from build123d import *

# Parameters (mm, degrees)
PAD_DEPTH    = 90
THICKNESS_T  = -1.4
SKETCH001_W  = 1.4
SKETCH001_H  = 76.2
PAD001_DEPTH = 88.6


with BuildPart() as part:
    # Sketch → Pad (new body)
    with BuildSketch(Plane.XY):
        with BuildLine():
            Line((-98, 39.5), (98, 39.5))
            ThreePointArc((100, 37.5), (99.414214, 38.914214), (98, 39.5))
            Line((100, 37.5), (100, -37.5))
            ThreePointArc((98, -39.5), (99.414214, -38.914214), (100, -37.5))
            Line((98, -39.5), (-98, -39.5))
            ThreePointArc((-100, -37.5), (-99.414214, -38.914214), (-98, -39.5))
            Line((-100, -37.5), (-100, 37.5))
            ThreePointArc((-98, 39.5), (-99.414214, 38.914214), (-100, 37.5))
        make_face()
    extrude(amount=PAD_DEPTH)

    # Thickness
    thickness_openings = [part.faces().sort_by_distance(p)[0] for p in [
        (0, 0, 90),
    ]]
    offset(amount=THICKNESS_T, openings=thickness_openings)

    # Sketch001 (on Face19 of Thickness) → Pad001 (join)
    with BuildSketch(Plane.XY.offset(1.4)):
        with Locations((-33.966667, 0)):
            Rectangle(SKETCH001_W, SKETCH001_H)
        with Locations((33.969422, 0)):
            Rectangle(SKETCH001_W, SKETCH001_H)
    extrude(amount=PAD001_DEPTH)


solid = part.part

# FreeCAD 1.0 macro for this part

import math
import FreeCAD as App
import Part
import Sketcher

V = App.Vector


def faces_at(feature, points):
    """Names of the faces that lie closest to the given points."""
    faces = feature.Shape.Faces
    near = lambda p: min(range(len(faces)), key=lambda i: faces[i].distToShape(Part.Vertex(*p))[0])
    return sorted({f"Face{near(p) + 1}" for p in points})


def add_polygon(sketch, points):
    """Adds a closed chain of lines whose ends are joined by coincident constraints."""
    first, n = sketch.GeometryCount, len(points)
    for a, b in zip(points, points[1:] + points[:1]):
        sketch.addGeometry(Part.LineSegment(App.Vector(*a, 0), App.Vector(*b, 0)), False)
    for i in range(n):
        sketch.addConstraint(Sketcher.Constraint("Coincident", first + i, 2, first + (i + 1) % n, 1))

doc = App.newDocument("Part")
body = doc.addObject("PartDesign::Body", "Body")

sketch1 = body.newObject("Sketcher::SketchObject", "Sketch")
sketch1.AttachmentSupport = (doc.getObject("XY_Plane"), [""])
sketch1.MapMode = "FlatFace"
sketch1.addGeometry([
    Part.LineSegment(V(98, 39.5, 0), V(-98, 39.5, 0)),
    Part.ArcOfCircle(Part.Circle(V(-98, 37.5, 0), V(0, 0, 1), 2), math.radians(90), math.radians(180)),
    Part.LineSegment(V(-100, 37.5, 0), V(-100, -37.5, 0)),
    Part.ArcOfCircle(Part.Circle(V(-98, -37.5, 0), V(0, 0, 1), 2), math.radians(180), math.radians(270)),
    Part.LineSegment(V(-98, -39.5, 0), V(98, -39.5, 0)),
    Part.ArcOfCircle(Part.Circle(V(98, -37.5, 0), V(0, 0, 1), 2), math.radians(-90), math.radians(0)),
    Part.LineSegment(V(100, -37.5, 0), V(100, 37.5, 0)),
    Part.ArcOfCircle(Part.Circle(V(98, 37.5, 0), V(0, 0, 1), 2), math.radians(0), math.radians(90)),
], False)
sketch1.addConstraint([
    Sketcher.Constraint("Tangent", 0, 2, 1, 1),
    Sketcher.Constraint("Tangent", 1, 2, 2, 1),
    Sketcher.Constraint("Tangent", 2, 2, 3, 1),
    Sketcher.Constraint("Tangent", 3, 2, 4, 1),
    Sketcher.Constraint("Tangent", 4, 2, 5, 1),
    Sketcher.Constraint("Tangent", 5, 2, 6, 1),
    Sketcher.Constraint("Tangent", 6, 2, 7, 1),
    Sketcher.Constraint("Tangent", 7, 2, 0, 1),
    Sketcher.Constraint("Horizontal", 0),
    Sketcher.Constraint("Vertical", 2),
    Sketcher.Constraint("Horizontal", 4),
    Sketcher.Constraint("Vertical", 6),
    Sketcher.Constraint("Equal", 1, 3),
    Sketcher.Constraint("Equal", 3, 5),
    Sketcher.Constraint("Equal", 5, 7),
    Sketcher.Constraint("Symmetric", 1, 3, 5, 3, -1, 1),
    Sketcher.Constraint("Radius", 1, 1.999999),
    Sketcher.Constraint("DistanceX", 0, 2, 0, 1, 196.0),
    Sketcher.Constraint("DistanceY", 2, 2, 2, 1, 75.0),
])
pad1 = body.newObject("PartDesign::Pad", "Pad")
pad1.Profile = sketch1
pad1.Length = 90
doc.recompute()

thickness = body.newObject("PartDesign::Thickness", "Thickness")
thickness.Base = (pad1, faces_at(pad1, [(0, 0, 90)]))
thickness.Value = 1.4
thickness.Reversed = True
thickness.Join = "Arc"

sketch2 = body.newObject("Sketcher::SketchObject", "Sketch001")
sketch2.AttachmentSupport = (doc.getObject("XY_Plane"), [""])
sketch2.MapMode = "FlatFace"
sketch2.AttachmentOffset = App.Placement(V(0, 0, 1.4), App.Rotation())
add_polygon(sketch2, [(-34.7, 38.1), (-34.7, -38.1), (-33.3, -38.1), (-33.3, 38.1)])
add_polygon(sketch2, [(33.3, 38.1), (33.3, -38.1), (34.7, -38.1), (34.7, 38.1)])
sketch2.addConstraint([
    Sketcher.Constraint("Vertical", 0),
    Sketcher.Constraint("Horizontal", 1),
    Sketcher.Constraint("Vertical", 2),
    Sketcher.Constraint("Horizontal", 3),
    Sketcher.Constraint("Vertical", 4),
    Sketcher.Constraint("Horizontal", 5),
    Sketcher.Constraint("Vertical", 6),
    Sketcher.Constraint("Horizontal", 7),
    Sketcher.Constraint("Horizontal", 1, 2, 4, 2),
    Sketcher.Constraint("Horizontal", 3, 2, 6, 2),
    Sketcher.Constraint("Equal", 3, 5),
    Sketcher.Constraint("DistanceX", 1, 1, 1, 2, 1.4),
    Sketcher.Constraint("DistanceY", 0, 2, 0, 1, 76.2),
    Sketcher.Constraint("DistanceY", 0, 2, -1, 1, 38.1),
    Sketcher.Constraint("DistanceX", -1, 1, 5, 2, 34.669422),
    Sketcher.Constraint("DistanceX", 1, 2, 4, 2, 66.536089),
])
pad2 = body.newObject("PartDesign::Pad", "Pad001")
pad2.Profile = sketch2
pad2.Length = 88.6

doc.recompute()
